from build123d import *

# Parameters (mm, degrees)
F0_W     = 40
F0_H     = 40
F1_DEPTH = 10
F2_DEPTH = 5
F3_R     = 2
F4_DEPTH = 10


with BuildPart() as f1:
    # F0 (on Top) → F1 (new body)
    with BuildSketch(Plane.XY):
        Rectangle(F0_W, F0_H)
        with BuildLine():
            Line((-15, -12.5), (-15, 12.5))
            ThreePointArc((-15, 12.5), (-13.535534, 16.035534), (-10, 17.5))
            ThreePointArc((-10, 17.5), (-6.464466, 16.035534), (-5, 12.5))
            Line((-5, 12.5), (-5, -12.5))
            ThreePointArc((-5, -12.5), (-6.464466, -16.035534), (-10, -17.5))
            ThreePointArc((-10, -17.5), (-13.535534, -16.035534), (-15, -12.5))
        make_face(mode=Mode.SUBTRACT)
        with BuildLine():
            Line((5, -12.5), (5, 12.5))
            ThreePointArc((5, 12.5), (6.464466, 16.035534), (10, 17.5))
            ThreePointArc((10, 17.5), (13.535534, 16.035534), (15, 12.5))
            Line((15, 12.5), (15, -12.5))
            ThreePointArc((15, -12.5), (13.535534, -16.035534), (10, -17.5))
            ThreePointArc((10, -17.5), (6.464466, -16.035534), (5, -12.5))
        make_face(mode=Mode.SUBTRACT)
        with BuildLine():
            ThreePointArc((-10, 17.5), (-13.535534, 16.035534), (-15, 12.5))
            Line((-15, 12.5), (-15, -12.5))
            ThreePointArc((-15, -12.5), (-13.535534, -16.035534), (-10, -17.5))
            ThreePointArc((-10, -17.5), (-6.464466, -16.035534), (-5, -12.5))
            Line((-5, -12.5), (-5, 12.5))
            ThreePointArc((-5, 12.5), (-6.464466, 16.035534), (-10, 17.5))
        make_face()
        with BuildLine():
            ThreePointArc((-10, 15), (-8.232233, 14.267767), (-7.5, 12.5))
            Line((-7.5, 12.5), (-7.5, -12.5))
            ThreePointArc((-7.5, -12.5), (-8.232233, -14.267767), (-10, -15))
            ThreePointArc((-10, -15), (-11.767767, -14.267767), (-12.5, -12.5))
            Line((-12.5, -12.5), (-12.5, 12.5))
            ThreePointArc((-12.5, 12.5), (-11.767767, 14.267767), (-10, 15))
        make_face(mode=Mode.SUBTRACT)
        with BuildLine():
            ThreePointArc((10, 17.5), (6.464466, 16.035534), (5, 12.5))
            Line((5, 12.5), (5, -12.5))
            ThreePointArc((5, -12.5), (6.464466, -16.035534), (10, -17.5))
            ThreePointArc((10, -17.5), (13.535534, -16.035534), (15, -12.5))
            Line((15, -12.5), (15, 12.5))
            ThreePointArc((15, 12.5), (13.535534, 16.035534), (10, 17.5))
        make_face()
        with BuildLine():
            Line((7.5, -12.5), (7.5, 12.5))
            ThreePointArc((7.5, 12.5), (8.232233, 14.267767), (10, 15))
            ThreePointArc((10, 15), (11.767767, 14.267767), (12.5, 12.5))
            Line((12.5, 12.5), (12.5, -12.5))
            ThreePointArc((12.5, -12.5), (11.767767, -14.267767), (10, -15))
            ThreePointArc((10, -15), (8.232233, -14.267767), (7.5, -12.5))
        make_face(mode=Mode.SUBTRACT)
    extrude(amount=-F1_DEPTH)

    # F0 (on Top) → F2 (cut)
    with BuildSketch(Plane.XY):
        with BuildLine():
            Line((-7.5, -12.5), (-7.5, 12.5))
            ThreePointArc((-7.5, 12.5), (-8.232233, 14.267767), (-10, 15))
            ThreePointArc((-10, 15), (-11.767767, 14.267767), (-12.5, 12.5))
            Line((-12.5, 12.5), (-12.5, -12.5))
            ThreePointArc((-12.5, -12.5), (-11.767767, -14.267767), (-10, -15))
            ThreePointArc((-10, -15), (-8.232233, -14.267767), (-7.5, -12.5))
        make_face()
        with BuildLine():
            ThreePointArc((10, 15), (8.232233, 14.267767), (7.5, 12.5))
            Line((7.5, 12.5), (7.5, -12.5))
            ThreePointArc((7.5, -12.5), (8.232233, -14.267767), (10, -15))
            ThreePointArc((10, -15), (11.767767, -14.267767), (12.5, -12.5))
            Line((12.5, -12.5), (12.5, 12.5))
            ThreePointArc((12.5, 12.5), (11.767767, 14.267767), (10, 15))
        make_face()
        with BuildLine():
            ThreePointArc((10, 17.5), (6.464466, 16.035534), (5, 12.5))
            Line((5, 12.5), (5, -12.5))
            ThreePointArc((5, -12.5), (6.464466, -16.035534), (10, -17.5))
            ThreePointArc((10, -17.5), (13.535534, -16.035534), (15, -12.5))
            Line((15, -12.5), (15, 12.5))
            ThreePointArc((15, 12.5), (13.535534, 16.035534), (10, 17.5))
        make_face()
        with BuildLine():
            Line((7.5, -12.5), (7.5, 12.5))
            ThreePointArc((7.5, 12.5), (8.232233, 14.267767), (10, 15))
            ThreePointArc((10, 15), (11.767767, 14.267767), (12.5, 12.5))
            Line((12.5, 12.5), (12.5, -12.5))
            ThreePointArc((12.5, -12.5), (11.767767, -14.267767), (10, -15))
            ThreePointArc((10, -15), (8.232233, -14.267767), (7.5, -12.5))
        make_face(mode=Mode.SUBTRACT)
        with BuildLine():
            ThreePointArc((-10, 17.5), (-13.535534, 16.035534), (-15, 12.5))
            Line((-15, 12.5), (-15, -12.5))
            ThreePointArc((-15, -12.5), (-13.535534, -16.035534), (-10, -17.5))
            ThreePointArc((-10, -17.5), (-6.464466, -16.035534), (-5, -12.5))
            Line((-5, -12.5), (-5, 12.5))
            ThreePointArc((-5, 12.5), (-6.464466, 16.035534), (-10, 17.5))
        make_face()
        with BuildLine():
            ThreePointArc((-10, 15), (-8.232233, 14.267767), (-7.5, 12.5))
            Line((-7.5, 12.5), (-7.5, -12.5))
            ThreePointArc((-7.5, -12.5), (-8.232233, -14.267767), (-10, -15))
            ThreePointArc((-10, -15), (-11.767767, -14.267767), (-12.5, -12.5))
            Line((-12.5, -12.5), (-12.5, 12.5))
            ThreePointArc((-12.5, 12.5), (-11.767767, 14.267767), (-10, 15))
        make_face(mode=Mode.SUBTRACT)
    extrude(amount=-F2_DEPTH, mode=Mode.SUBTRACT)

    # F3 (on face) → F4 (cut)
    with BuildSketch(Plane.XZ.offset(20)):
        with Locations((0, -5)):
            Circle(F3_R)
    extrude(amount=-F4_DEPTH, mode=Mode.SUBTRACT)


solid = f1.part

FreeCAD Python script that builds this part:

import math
import FreeCAD as App
import Part
import Sketcher
from FreeCAD import Vector
Q = App.Units.Quantity


def add_polygon(sketch, points):
    """Adds a closed chain of lines whose ends are joined by coincident constraints."""
    first, n = sketch.GeometryCount, len(points)
    for a, b in zip(points, points[1:] + points[:1]):
        sketch.addGeometry(Part.LineSegment(App.Vector(*a, 0), App.Vector(*b, 0)), False)
    for i in range(n):
        sketch.addConstraint(Sketcher.Constraint("Coincident", first + i, 2, first + (i + 1) % n, 1))

doc = App.newDocument("Part")
params = doc.addObject("Spreadsheet::Sheet", "Params")
for row, (alias, value) in enumerate([
    ("sketch1_radius", "2.5 mm"),
    ("sketch1_width", "40 mm"),
    ("sketch1_height", "25 mm"),
    ("pad1_length", "10 mm"),
    ("sketch2_radius", "5 mm"),
    ("sketch2_radius2", "2.5 mm"),
    ("sketch2_height", "25 mm"),
    ("pocket1_length", "5 mm"),
    ("sketch3_diameter", "4 mm"),
    ("pocket2_length", "10 mm"),
], start=1):
    params.set(f"A{row}", alias)
    params.set(f"B{row}", "=" + value)
    params.setAlias(f"B{row}", alias)

body = doc.addObject("PartDesign::Body", "Body")

sketch1 = body.newObject("Sketcher::SketchObject", "Sketch")
sketch1.AttachmentSupport = (doc.getObject("XY_Plane"), [""])
sketch1.MapMode = "FlatFace"
add_polygon(sketch1, [(-20, 20), (-20, -20), (20, -20), (20, 20)])
sketch1.addGeometry(Part.ArcOfCircle(Part.Circle(Vector(-10, 12.5, 0), Vector(0, 0, 1), 2.5), math.radians(90), math.radians(180)), False)
sketch1.addGeometry(Part.ArcOfCircle(Part.Circle(Vector(-10, 12.5, 0), Vector(0, 0, 1), 2.5), math.radians(0), math.radians(90)), False)
sketch1.addGeometry(Part.LineSegment(Vector(-7.5, 12.5, 0), Vector(-7.5, -12.5, 0)), False)
sketch1.addGeometry(Part.ArcOfCircle(Part.Circle(Vector(-10, -12.5, 0), Vector(0, 0, 1), 2.5), math.radians(-90), math.radians(0)), False)
sketch1.addGeometry(Part.ArcOfCircle(Part.Circle(Vector(-10, -12.5, 0), Vector(0, 0, 1), 2.5), math.radians(180), math.radians(270)), False)
sketch1.addGeometry(Part.LineSegment(Vector(-12.5, -12.5, 0), Vector(-12.5, 12.5, 0)), False)
sketch1.addGeometry(Part.ArcOfCircle(Part.Circle(Vector(10, -12.5, 0), Vector(0, 0, 1), 2.5), math.radians(180), math.radians(270)), False)
sketch1.addGeometry(Part.LineSegment(Vector(7.5, -12.5, 0), Vector(7.5, 12.5, 0)), False)
sketch1.addGeometry(Part.ArcOfCircle(Part.Circle(Vector(10, 12.5, 0), Vector(0, 0, 1), 2.5), math.radians(90), math.radians(180)), False)
sketch1.addGeometry(Part.ArcOfCircle(Part.Circle(Vector(10, 12.5, 0), Vector(0, 0, 1), 2.5), math.radians(0), math.radians(90)), False)
sketch1.addGeometry(Part.LineSegment(Vector(12.5, 12.5, 0), Vector(12.5, -12.5, 0)), False)
sketch1.addGeometry(Part.ArcOfCircle(Part.Circle(Vector(10, -12.5, 0), Vector(0, 0, 1), 2.5), math.radians(-90), math.radians(0)), False)
sketch1.addConstraint(Sketcher.Constraint("Tangent", 4, 1, 5, 2))
sketch1.addConstraint(Sketcher.Constraint("Tangent", 5, 1, 6, 1))
sketch1.addConstraint(Sketcher.Constraint("Tangent", 6, 2, 7, 2))
sketch1.addConstraint(Sketcher.Constraint("Tangent", 7, 1, 8, 2))
sketch1.addConstraint(Sketcher.Constraint("Tangent", 8, 1, 9, 1))
sketch1.addConstraint(Sketcher.Constraint("Tangent", 9, 2, 4, 2))
sketch1.addConstraint(Sketcher.Constraint("Tangent", 10, 1, 11, 1))
sketch1.addConstraint(Sketcher.Constraint("Tangent", 11, 2, 12, 2))
sketch1.addConstraint(Sketcher.Constraint("Tangent", 12, 1, 13, 2))
sketch1.addConstraint(Sketcher.Constraint("Tangent", 13, 1, 14, 1))
sketch1.addConstraint(Sketcher.Constraint("Tangent", 14, 2, 15, 2))
sketch1.addConstraint(Sketcher.Constraint("Tangent", 15, 1, 10, 2))
sketch1.addConstraint(Sketcher.Constraint("Vertical", 0))
sketch1.addConstraint(Sketcher.Constraint("Horizontal", 1))
sketch1.addConstraint(Sketcher.Constraint("Vertical", 2))
sketch1.addConstraint(Sketcher.Constraint("Horizontal", 3))
sketch1.addConstraint(Sketcher.Constraint("Vertical", 6))
sketch1.addConstraint(Sketcher.Constraint("Vertical", 9))
sketch1.addConstraint(Sketcher.Constraint("Vertical", 11))
sketch1.addConstraint(Sketcher.Constraint("Vertical", 14))
sketch1.addConstraint(Sketcher.Constraint("Equal", 4, 5))
sketch1.addConstraint(Sketcher.Constraint("Equal", 5, 7))
sketch1.addConstraint(Sketcher.Constraint("Equal", 8, 10))
sketch1.addConstraint(Sketcher.Constraint("Equal", 10, 12))
sketch1.addConstraint(Sketcher.Constraint("Equal", 12, 13))
sketch1.addConstraint(Sketcher.Constraint("Symmetric", 4, 3, 10, 3, -1, 1))
sketch1.addConstraint(Sketcher.Constraint("Symmetric", 0, 2, 2, 2, -1, 1))
sketch1.addConstraint(Sketcher.Constraint("Symmetric", 7, 1, 12, 1, -1, 1))
sketch1.addConstraint(Sketcher.Constraint("Symmetric", 4, 1, 12, 1, -2))
sketch1.addConstraint(Sketcher.Constraint("Vertical", 8, 3, 4, 1))
sketch1.addConstraint(Sketcher.Constraint("Vertical", 12, 1, 15, 1))
sketch1.addConstraint(Sketcher.Constraint("Equal", 3, 0))
sketch1.addConstraint(Sketcher.Constraint("Radius", 4, Q("2.5 mm")))
sketch1.addConstraint(Sketcher.Constraint("DistanceX", 1, 1, 1, 2, Q("40 mm")))
sketch1.addConstraint(Sketcher.Constraint("DistanceY", 6, 2, 6, 1, Q("25 mm")))
sketch1.addConstraint(Sketcher.Constraint("DistanceX", 4, 3, -1, 1, Q("10 mm")))
sketch1.setExpression("Constraints[36]", "Params.sketch1_radius")
sketch1.setExpression("Constraints[37]", "Params.sketch1_width")
sketch1.setExpression("Constraints[38]", "Params.sketch1_height")
pad1 = body.newObject("PartDesign::Pad", "Pad")
pad1.Profile = sketch1
pad1.setExpression("Length", "Params.pad1_length")
pad1.Reversed = True

sketch2 = body.newObject("Sketcher::SketchObject", "Sketch001")
sketch2.AttachmentSupport = (doc.getObject("XY_Plane"), [""])
sketch2.MapMode = "FlatFace"
sketch2.addGeometry(Part.ArcOfCircle(Part.Circle(Vector(-10, 12.5, 0), Vector(0, 0, 1), 5), math.radians(90), math.radians(180)), False)
sketch2.addGeometry(Part.LineSegment(Vector(-15, 12.5, 0), Vector(-15, -12.5, 0)), False)
sketch2.addGeometry(Part.ArcOfCircle(Part.Circle(Vector(-10, -12.5, 0), Vector(0, 0, 1), 5), math.radians(180), math.radians(270)), False)
sketch2.addGeometry(Part.ArcOfCircle(Part.Circle(Vector(-10, -12.5, 0), Vector(0, 0, 1), 5), math.radians(-90), math.radians(0)), False)
sketch2.addGeometry(Part.LineSegment(Vector(-5, -12.5, 0), Vector(-5, 12.5, 0)), False)
sketch2.addGeometry(Part.ArcOfCircle(Part.Circle(Vector(-10, 12.5, 0), Vector(0, 0, 1), 5), math.radians(0), math.radians(90)), False)
sketch2.addGeometry(Part.ArcOfCircle(Part.Circle(Vector(-10, 12.5, 0), Vector(0, 0, 1), 2.5), math.radians(90), math.radians(180)), False)
sketch2.addGeometry(Part.ArcOfCircle(Part.Circle(Vector(-10, 12.5, 0), Vector(0, 0, 1), 2.5), math.radians(0), math.radians(90)), False)
sketch2.addGeometry(Part.LineSegment(Vector(-7.5, 12.5, 0), Vector(-7.5, -12.5, 0)), False)
sketch2.addGeometry(Part.ArcOfCircle(Part.Circle(Vector(-10, -12.5, 0), Vector(0, 0, 1), 2.5), math.radians(-90), math.radians(0)), False)
sketch2.addGeometry(Part.ArcOfCircle(Part.Circle(Vector(-10, -12.5, 0), Vector(0, 0, 1), 2.5), math.radians(180), math.radians(270)), False)
sketch2.addGeometry(Part.LineSegment(Vector(-12.5, -12.5, 0), Vector(-12.5, 12.5, 0)), False)
sketch2.addGeometry(Part.ArcOfCircle(Part.Circle(Vector(10, 12.5, 0), Vector(0, 0, 1), 5), math.radians(90), math.radians(180)), False)
sketch2.addGeometry(Part.LineSegment(Vector(5, 12.5, 0), Vector(5, -12.5, 0)), False)
sketch2.addGeometry(Part.ArcOfCircle(Part.Circle(Vector(10, -12.5, 0), Vector(0, 0, 1), 5), math.radians(180), math.radians(270)), False)
sketch2.addGeometry(Part.ArcOfCircle(Part.Circle(Vector(10, -12.5, 0), Vector(0, 0, 1), 5), math.radians(-90), math.radians(0)), False)
sketch2.addGeometry(Part.LineSegment(Vector(15, -12.5, 0), Vector(15, 12.5, 0)), False)
sketch2.addGeometry(Part.ArcOfCircle(Part.Circle(Vector(10, 12.5, 0), Vector(0, 0, 1), 5), math.radians(0), math.radians(90)), False)
sketch2.addGeometry(Part.ArcOfCircle(Part.Circle(Vector(10, -12.5, 0), Vector(0, 0, 1), 2.5), math.radians(180), math.radians(270)), False)
sketch2.addGeometry(Part.LineSegment(Vector(7.5, -12.5, 0), Vector(7.5, 12.5, 0)), False)
sketch2.addGeometry(Part.ArcOfCircle(Part.Circle(Vector(10, 12.5, 0), Vector(0, 0, 1), 2.5), math.radians(90), math.radians(180)), False)
sketch2.addGeometry(Part.ArcOfCircle(Part.Circle(Vector(10, 12.5, 0), Vector(0, 0, 1), 2.5), math.radians(0), math.radians(90)), False)
sketch2.addGeometry(Part.LineSegment(Vector(12.5, 12.5, 0), Vector(12.5, -12.5, 0)), False)
sketch2.addGeometry(Part.ArcOfCircle(Part.Circle(Vector(10, -12.5, 0), Vector(0, 0, 1), 2.5), math.radians(-90), math.radians(0)), False)
sketch2.addConstraint(Sketcher.Constraint("Tangent", 0, 2, 1, 1))
sketch2.addConstraint(Sketcher.Constraint("Tangent", 1, 2, 2, 1))
sketch2.addConstraint(Sketcher.Constraint("Tangent", 2, 2, 3, 1))
sketch2.addConstraint(Sketcher.Constraint("Tangent", 3, 2, 4, 1))
sketch2.addConstraint(Sketcher.Constraint("Tangent", 4, 2, 5, 1))
sketch2.addConstraint(Sketcher.Constraint("Tangent", 5, 2, 0, 1))
sketch2.addConstraint(Sketcher.Constraint("Tangent", 6, 1, 7, 2))
sketch2.addConstraint(Sketcher.Constraint("Tangent", 7, 1, 8, 1))
sketch2.addConstraint(Sketcher.Constraint("Tangent", 8, 2, 9, 2))
sketch2.addConstraint(Sketcher.Constraint("Tangent", 9, 1, 10, 2))
sketch2.addConstraint(Sketcher.Constraint("Tangent", 10, 1, 11, 1))
sketch2.addConstraint(Sketcher.Constraint("Tangent", 11, 2, 6, 2))
sketch2.addConstraint(Sketcher.Constraint("Tangent", 12, 2, 13, 1))
sketch2.addConstraint(Sketcher.Constraint("Tangent", 13, 2, 14, 1))
sketch2.addConstraint(Sketcher.Constraint("Tangent", 14, 2, 15, 1))
sketch2.addConstraint(Sketcher.Constraint("Tangent", 15, 2, 16, 1))
sketch2.addConstraint(Sketcher.Constraint("Tangent", 16, 2, 17, 1))
sketch2.addConstraint(Sketcher.Constraint("Tangent", 17, 2, 12, 1))
sketch2.addConstraint(Sketcher.Constraint("Tangent", 18, 1, 19, 1))
sketch2.addConstraint(Sketcher.Constraint("Tangent", 19, 2, 20, 2))
sketch2.addConstraint(Sketcher.Constraint("Tangent", 20, 1, 21, 2))
sketch2.addConstraint(Sketcher.Constraint("Tangent", 21, 1, 22, 1))
sketch2.addConstraint(Sketcher.Constraint("Tangent", 22, 2, 23, 2))
sketch2.addConstraint(Sketcher.Constraint("Tangent", 23, 1, 18, 2))
sketch2.addConstraint(Sketcher.Constraint("Vertical", 1))
sketch2.addConstraint(Sketcher.Constraint("Vertical", 4))
sketch2.addConstraint(Sketcher.Constraint("Vertical", 8))
sketch2.addConstraint(Sketcher.Constraint("Vertical", 11))
sketch2.addConstraint(Sketcher.Constraint("Vertical", 13))
sketch2.addConstraint(Sketcher.Constraint("Vertical", 16))
sketch2.addConstraint(Sketcher.Constraint("Vertical", 19))
sketch2.addConstraint(Sketcher.Constraint("Vertical", 22))
sketch2.addConstraint(Sketcher.Constraint("Coincident", 6, 3, 0, 3))
sketch2.addConstraint(Sketcher.Constraint("Coincident", 9, 3, 2, 3))
sketch2.addConstraint(Sketcher.Constraint("Coincident", 18, 3, 14, 3))
sketch2.addConstraint(Sketcher.Constraint("Coincident", 20, 3, 12, 3))
sketch2.addConstraint(Sketcher.Constraint("Equal", 0, 2))
sketch2.addConstraint(Sketcher.Constraint("Equal", 2, 3))
sketch2.addConstraint(Sketcher.Constraint("Equal", 6, 7))
sketch2.addConstraint(Sketcher.Constraint("Equal", 5, 12))
sketch2.addConstraint(Sketcher.Constraint("Equal", 12, 14))
sketch2.addConstraint(Sketcher.Constraint("Equal", 14, 15))
sketch2.addConstraint(Sketcher.Constraint("Equal", 10, 18))
sketch2.addConstraint(Sketcher.Constraint("Equal", 20, 21))
sketch2.addConstraint(Sketcher.Constraint("Symmetric", 2, 3, 12, 3, -1, 1))
sketch2.addConstraint(Sketcher.Constraint("Symmetric", 5, 2, 14, 2, -1, 1))
sketch2.addConstraint(Sketcher.Constraint("Symmetric", 2, 2, 14, 2, -2))
sketch2.addConstraint(Sketcher.Constraint("Vertical", 10, 3, 2, 2))
sketch2.addConstraint(Sketcher.Constraint("Vertical", 5, 2, 6, 1))
sketch2.addConstraint(Sketcher.Constraint("Vertical", 6, 1, 9, 1))
sketch2.addConstraint(Sketcher.Constraint("Vertical", 14, 2, 17, 2))
sketch2.addConstraint(Sketcher.Constraint("Vertical", 17, 2, 20, 1))
sketch2.addConstraint(Sketcher.Constraint("Vertical", 20, 1, 23, 1))
sketch2.addConstraint(Sketcher.Constraint("Radius", 0, Q("5 mm")))
sketch2.addConstraint(Sketcher.Constraint("Radius", 6, Q("2.5 mm")))
sketch2.addConstraint(Sketcher.Constraint("DistanceY", 1, 2, 1, 1, Q("25 mm")))
sketch2.addConstraint(Sketcher.Constraint("DistanceX", 0, 3, -1, 1, Q("10 mm")))
sketch2.setExpression("Constraints[53]", "Params.sketch2_radius")
sketch2.setExpression("Constraints[54]", "Params.sketch2_radius2")
sketch2.setExpression("Constraints[55]", "Params.sketch2_height")
pocket1 = body.newObject("PartDesign::Pocket", "Pocket")
pocket1.Profile = sketch2
pocket1.setExpression("Length", "Params.pocket1_length")

sketch3 = body.newObject("Sketcher::SketchObject", "Sketch002")
sketch3.AttachmentSupport = (doc.getObject("XZ_Plane"), [""])
sketch3.MapMode = "FlatFace"
sketch3.AttachmentOffset = App.Placement(Vector(0, 0, 20), App.Rotation())
sketch3.addGeometry(Part.Circle(Vector(0, -5, 0), Vector(0, 0, 1), 2), False)
sketch3.addConstraint(Sketcher.Constraint("PointOnObject", 0, 3, -2))
sketch3.addConstraint(Sketcher.Constraint("Diameter", 0, Q("4 mm")))
sketch3.addConstraint(Sketcher.Constraint("DistanceY", 0, 3, -1, 1, Q("5 mm")))
sketch3.setExpression("Constraints[1]", "Params.sketch3_diameter")
pocket2 = body.newObject("PartDesign::Pocket", "Pocket001")
pocket2.Profile = sketch3
pocket2.setExpression("Length", "Params.pocket2_length")

doc.recompute()
